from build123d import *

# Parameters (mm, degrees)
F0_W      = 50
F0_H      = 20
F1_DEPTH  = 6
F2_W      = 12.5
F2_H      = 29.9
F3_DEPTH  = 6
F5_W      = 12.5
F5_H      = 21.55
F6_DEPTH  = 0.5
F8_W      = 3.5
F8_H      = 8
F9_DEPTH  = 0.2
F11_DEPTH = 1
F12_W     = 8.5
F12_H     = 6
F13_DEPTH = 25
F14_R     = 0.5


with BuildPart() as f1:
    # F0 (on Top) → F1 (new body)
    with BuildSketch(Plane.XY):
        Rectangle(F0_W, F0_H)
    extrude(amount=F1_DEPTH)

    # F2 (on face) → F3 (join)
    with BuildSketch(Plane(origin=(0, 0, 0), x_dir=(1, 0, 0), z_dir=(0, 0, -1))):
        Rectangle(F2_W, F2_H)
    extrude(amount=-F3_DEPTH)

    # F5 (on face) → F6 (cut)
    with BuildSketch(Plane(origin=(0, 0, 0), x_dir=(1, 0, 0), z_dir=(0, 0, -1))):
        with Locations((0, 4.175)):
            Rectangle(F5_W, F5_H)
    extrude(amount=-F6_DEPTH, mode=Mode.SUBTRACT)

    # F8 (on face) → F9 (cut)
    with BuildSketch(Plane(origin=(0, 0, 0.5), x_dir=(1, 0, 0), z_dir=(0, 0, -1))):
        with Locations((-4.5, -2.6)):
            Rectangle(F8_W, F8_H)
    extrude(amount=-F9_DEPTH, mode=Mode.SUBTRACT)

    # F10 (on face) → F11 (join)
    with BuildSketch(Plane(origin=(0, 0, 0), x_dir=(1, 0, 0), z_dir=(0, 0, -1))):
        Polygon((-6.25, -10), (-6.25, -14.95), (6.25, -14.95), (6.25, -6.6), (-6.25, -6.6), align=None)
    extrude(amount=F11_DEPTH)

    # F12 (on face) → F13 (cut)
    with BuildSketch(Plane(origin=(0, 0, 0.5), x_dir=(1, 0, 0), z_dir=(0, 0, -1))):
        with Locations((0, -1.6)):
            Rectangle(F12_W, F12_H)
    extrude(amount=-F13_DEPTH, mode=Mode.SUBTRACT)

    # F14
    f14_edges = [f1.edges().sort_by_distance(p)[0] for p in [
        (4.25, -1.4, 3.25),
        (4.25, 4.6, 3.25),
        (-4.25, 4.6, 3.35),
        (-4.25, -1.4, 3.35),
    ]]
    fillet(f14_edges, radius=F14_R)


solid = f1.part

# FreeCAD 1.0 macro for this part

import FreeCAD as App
import Part
import Sketcher
from FreeCAD import Vector


def edges_at(feature, points):
    """Names of the edges that pass closest to the given points."""
    edges = feature.Shape.Edges
    near = lambda p: min(range(len(edges)), key=lambda i: edges[i].distToShape(Part.Vertex(*p))[0])
    return sorted({f"Edge{near(p) + 1}" for p in points})


def add_polygon(sketch, points):
    """Adds a closed chain of lines whose ends are joined by coincident constraints."""
    first, n = sketch.GeometryCount, len(points)
    for a, b in zip(points, points[1:] + points[:1]):
        sketch.addGeometry(Part.LineSegment(App.Vector(*a, 0), App.Vector(*b, 0)), False)
    for i in range(n):
        sketch.addConstraint(Sketcher.Constraint("Coincident", first + i, 2, first + (i + 1) % n, 1))

doc = App.newDocument("Part")
body = doc.addObject("PartDesign::Body", "Body")

# Sketch on XY plane
sketch1 = doc.addObject("Sketcher::SketchObject", "Sketch")
body.addObject(sketch1)
sketch1.AttachmentSupport = (doc.XY_Plane, [""])
sketch1.MapMode = "FlatFace"
add_polygon(sketch1, [(-25, 10), (-25, -10), (25, -10), (25, 10)])  # lines 0-3
sketch1.addConstraint([
    Sketcher.Constraint("Vertical", 0),
    Sketcher.Constraint("Horizontal", 1),
    Sketcher.Constraint("Vertical", 2),
    Sketcher.Constraint("Horizontal", 3),
    Sketcher.Constraint("Symmetric", 0, 2, 2, 2, -1, 1),
    Sketcher.Constraint("DistanceX", 1, 1, 1, 2, 50.0),
    Sketcher.Constraint("DistanceY", 0, 2, 0, 1, 20.0),
])
pad1 = doc.addObject("PartDesign::Pad", "Pad")
body.addObject(pad1)
pad1.Profile = sketch1
pad1.Length = 6

# Sketch on XY plane
sketch2 = doc.addObject("Sketcher::SketchObject", "Sketch001")
body.addObject(sketch2)
sketch2.AttachmentSupport = (doc.XY_Plane, [""])
sketch2.MapMode = "FlatFace"
add_polygon(sketch2, [(-6, -15), (-6, 15), (6, 15), (6, -15)])  # lines 0-3
sketch2.addConstraint([
    Sketcher.Constraint("Vertical", 0),
    Sketcher.Constraint("Horizontal", 1),
    Sketcher.Constraint("Vertical", 2),
    Sketcher.Constraint("Horizontal", 3),
    Sketcher.Constraint("Symmetric", 0, 2, 2, 2, -1, 1),
    Sketcher.Constraint("DistanceX", 1, 1, 1, 2, 12.5),
    Sketcher.Constraint("DistanceY", 0, 1, 0, 2, 29.9),
])
pad2 = doc.addObject("PartDesign::Pad", "Pad001")
body.addObject(pad2)
pad2.Profile = sketch2
pad2.Length = 6

# Sketch on XY plane
sketch3 = doc.addObject("Sketcher::SketchObject", "Sketch002")
body.addObject(sketch3)
sketch3.AttachmentSupport = (doc.XY_Plane, [""])
sketch3.MapMode = "FlatFace"
add_polygon(sketch3, [(-6, -15), (-6, 7), (6, 7), (6, -15)])  # lines 0-3
sketch3.addConstraint([
    Sketcher.Constraint("Vertical", 0),
    Sketcher.Constraint("Horizontal", 1),
    Sketcher.Constraint("Vertical", 2),
    Sketcher.Constraint("Horizontal", 3),
    Sketcher.Constraint("DistanceX", 1, 1, 1, 2, 12.5),
    Sketcher.Constraint("DistanceY", 0, 1, 0, 2, 21.55),
    Sketcher.Constraint("DistanceY", -1, 1, 0, 2, 6.6),
    Sketcher.Constraint("DistanceX", 0, 2, -1, 1, 6.25),
])
pocket1 = doc.addObject("PartDesign::Pocket", "Pocket")
body.addObject(pocket1)
pocket1.Profile = sketch3
pocket1.Length = 0.5
pocket1.Reversed = True

# Sketch on XY plane
sketch4 = doc.addObject("Sketcher::SketchObject", "Sketch003")
body.addObject(sketch4)
sketch4.AttachmentSupport = (doc.XY_Plane, [""])
sketch4.MapMode = "FlatFace"
sketch4.AttachmentOffset = App.Placement(Vector(0, 0, 0.5), App.Rotation())
add_polygon(sketch4, [(-6.2, -1.4), (-6.2, 6.6), (-2.8, 6.6), (-2.8, -1.4)])  # lines 0-3
sketch4.addConstraint([
    Sketcher.Constraint("Vertical", 0),
    Sketcher.Constraint("Horizontal", 1),
    Sketcher.Constraint("Vertical", 2),
    Sketcher.Constraint("Horizontal", 3),
    Sketcher.Constraint("DistanceY", 0, 1, 0, 2, 8.0),
    Sketcher.Constraint("DistanceX", 1, 1, 1, 2, 3.5),
    Sketcher.Constraint("DistanceY", -1, 1, 0, 2, 6.6),
    Sketcher.Constraint("DistanceX", 0, 2, -1, 1, 6.25),
])
pocket2 = doc.addObject("PartDesign::Pocket", "Pocket001")
body.addObject(pocket2)
pocket2.Profile = sketch4
pocket2.Length = 0.2
pocket2.Reversed = True

# Sketch on XY plane
sketch5 = doc.addObject("Sketcher::SketchObject", "Sketch004")
body.addObject(sketch5)
sketch5.AttachmentSupport = (doc.XY_Plane, [""])
sketch5.MapMode = "FlatFace"
add_polygon(sketch5, [(-6, 15), (6, 15), (6, 7), (-6, 7)])  # lines 0-3
sketch5.addConstraint([
    Sketcher.Constraint("Horizontal", 0),
    Sketcher.Constraint("Vertical", 1),
    Sketcher.Constraint("Horizontal", 2),
    Sketcher.Constraint("Vertical", 3),
    Sketcher.Constraint("DistanceX", 0, 1, 0, 2, 12.5),
    Sketcher.Constraint("DistanceY", 1, 2, 1, 1, 8.35),
    Sketcher.Constraint("DistanceY", -1, 1, 1, 2, 6.6),
    Sketcher.Constraint("DistanceX", -1, 1, 0, 2, 6.25),
])
pad3 = doc.addObject("PartDesign::Pad", "Pad002")
body.addObject(pad3)
pad3.Profile = sketch5
pad3.Length = 1
pad3.Reversed = True

# Sketch on XY plane
sketch6 = doc.addObject("Sketcher::SketchObject", "Sketch005")
body.addObject(sketch6)
sketch6.AttachmentSupport = (doc.XY_Plane, [""])
sketch6.MapMode = "FlatFace"
sketch6.AttachmentOffset = App.Placement(Vector(0, 0, 0.5), App.Rotation())
add_polygon(sketch6, [(-4, -1), (-4, 5), (4, 5), (4, -1)])  # lines 0-3
sketch6.addConstraint([
    Sketcher.Constraint("Vertical", 0),
    Sketcher.Constraint("Horizontal", 1),
    Sketcher.Constraint("Vertical", 2),
    Sketcher.Constraint("Horizontal", 3),
    Sketcher.Constraint("DistanceY", 0, 1, 0, 2, 6.0),
    Sketcher.Constraint("DistanceX", 1, 1, 1, 2, 8.5),
    Sketcher.Constraint("DistanceY", -1, 1, 0, 2, 4.6),
    Sketcher.Constraint("DistanceX", 0, 2, -1, 1, 4.25),
])
pocket3 = doc.addObject("PartDesign::Pocket", "Pocket002")
body.addObject(pocket3)
pocket3.Profile = sketch6
pocket3.Length = 25
pocket3.Reversed = True
doc.recompute()

fillet = doc.addObject("PartDesign::Fillet", "Fillet")
body.addObject(fillet)
fillet.Base = (pocket3, edges_at(pocket3, [
    (4.25, -1.4, 3.25),
    (4.25, 4.6, 3.25),
    (-4.25, 4.6, 3.35),
    (-4.25, -1.4, 3.35),
]))
fillet.Radius = 0.5

doc.recompute()
